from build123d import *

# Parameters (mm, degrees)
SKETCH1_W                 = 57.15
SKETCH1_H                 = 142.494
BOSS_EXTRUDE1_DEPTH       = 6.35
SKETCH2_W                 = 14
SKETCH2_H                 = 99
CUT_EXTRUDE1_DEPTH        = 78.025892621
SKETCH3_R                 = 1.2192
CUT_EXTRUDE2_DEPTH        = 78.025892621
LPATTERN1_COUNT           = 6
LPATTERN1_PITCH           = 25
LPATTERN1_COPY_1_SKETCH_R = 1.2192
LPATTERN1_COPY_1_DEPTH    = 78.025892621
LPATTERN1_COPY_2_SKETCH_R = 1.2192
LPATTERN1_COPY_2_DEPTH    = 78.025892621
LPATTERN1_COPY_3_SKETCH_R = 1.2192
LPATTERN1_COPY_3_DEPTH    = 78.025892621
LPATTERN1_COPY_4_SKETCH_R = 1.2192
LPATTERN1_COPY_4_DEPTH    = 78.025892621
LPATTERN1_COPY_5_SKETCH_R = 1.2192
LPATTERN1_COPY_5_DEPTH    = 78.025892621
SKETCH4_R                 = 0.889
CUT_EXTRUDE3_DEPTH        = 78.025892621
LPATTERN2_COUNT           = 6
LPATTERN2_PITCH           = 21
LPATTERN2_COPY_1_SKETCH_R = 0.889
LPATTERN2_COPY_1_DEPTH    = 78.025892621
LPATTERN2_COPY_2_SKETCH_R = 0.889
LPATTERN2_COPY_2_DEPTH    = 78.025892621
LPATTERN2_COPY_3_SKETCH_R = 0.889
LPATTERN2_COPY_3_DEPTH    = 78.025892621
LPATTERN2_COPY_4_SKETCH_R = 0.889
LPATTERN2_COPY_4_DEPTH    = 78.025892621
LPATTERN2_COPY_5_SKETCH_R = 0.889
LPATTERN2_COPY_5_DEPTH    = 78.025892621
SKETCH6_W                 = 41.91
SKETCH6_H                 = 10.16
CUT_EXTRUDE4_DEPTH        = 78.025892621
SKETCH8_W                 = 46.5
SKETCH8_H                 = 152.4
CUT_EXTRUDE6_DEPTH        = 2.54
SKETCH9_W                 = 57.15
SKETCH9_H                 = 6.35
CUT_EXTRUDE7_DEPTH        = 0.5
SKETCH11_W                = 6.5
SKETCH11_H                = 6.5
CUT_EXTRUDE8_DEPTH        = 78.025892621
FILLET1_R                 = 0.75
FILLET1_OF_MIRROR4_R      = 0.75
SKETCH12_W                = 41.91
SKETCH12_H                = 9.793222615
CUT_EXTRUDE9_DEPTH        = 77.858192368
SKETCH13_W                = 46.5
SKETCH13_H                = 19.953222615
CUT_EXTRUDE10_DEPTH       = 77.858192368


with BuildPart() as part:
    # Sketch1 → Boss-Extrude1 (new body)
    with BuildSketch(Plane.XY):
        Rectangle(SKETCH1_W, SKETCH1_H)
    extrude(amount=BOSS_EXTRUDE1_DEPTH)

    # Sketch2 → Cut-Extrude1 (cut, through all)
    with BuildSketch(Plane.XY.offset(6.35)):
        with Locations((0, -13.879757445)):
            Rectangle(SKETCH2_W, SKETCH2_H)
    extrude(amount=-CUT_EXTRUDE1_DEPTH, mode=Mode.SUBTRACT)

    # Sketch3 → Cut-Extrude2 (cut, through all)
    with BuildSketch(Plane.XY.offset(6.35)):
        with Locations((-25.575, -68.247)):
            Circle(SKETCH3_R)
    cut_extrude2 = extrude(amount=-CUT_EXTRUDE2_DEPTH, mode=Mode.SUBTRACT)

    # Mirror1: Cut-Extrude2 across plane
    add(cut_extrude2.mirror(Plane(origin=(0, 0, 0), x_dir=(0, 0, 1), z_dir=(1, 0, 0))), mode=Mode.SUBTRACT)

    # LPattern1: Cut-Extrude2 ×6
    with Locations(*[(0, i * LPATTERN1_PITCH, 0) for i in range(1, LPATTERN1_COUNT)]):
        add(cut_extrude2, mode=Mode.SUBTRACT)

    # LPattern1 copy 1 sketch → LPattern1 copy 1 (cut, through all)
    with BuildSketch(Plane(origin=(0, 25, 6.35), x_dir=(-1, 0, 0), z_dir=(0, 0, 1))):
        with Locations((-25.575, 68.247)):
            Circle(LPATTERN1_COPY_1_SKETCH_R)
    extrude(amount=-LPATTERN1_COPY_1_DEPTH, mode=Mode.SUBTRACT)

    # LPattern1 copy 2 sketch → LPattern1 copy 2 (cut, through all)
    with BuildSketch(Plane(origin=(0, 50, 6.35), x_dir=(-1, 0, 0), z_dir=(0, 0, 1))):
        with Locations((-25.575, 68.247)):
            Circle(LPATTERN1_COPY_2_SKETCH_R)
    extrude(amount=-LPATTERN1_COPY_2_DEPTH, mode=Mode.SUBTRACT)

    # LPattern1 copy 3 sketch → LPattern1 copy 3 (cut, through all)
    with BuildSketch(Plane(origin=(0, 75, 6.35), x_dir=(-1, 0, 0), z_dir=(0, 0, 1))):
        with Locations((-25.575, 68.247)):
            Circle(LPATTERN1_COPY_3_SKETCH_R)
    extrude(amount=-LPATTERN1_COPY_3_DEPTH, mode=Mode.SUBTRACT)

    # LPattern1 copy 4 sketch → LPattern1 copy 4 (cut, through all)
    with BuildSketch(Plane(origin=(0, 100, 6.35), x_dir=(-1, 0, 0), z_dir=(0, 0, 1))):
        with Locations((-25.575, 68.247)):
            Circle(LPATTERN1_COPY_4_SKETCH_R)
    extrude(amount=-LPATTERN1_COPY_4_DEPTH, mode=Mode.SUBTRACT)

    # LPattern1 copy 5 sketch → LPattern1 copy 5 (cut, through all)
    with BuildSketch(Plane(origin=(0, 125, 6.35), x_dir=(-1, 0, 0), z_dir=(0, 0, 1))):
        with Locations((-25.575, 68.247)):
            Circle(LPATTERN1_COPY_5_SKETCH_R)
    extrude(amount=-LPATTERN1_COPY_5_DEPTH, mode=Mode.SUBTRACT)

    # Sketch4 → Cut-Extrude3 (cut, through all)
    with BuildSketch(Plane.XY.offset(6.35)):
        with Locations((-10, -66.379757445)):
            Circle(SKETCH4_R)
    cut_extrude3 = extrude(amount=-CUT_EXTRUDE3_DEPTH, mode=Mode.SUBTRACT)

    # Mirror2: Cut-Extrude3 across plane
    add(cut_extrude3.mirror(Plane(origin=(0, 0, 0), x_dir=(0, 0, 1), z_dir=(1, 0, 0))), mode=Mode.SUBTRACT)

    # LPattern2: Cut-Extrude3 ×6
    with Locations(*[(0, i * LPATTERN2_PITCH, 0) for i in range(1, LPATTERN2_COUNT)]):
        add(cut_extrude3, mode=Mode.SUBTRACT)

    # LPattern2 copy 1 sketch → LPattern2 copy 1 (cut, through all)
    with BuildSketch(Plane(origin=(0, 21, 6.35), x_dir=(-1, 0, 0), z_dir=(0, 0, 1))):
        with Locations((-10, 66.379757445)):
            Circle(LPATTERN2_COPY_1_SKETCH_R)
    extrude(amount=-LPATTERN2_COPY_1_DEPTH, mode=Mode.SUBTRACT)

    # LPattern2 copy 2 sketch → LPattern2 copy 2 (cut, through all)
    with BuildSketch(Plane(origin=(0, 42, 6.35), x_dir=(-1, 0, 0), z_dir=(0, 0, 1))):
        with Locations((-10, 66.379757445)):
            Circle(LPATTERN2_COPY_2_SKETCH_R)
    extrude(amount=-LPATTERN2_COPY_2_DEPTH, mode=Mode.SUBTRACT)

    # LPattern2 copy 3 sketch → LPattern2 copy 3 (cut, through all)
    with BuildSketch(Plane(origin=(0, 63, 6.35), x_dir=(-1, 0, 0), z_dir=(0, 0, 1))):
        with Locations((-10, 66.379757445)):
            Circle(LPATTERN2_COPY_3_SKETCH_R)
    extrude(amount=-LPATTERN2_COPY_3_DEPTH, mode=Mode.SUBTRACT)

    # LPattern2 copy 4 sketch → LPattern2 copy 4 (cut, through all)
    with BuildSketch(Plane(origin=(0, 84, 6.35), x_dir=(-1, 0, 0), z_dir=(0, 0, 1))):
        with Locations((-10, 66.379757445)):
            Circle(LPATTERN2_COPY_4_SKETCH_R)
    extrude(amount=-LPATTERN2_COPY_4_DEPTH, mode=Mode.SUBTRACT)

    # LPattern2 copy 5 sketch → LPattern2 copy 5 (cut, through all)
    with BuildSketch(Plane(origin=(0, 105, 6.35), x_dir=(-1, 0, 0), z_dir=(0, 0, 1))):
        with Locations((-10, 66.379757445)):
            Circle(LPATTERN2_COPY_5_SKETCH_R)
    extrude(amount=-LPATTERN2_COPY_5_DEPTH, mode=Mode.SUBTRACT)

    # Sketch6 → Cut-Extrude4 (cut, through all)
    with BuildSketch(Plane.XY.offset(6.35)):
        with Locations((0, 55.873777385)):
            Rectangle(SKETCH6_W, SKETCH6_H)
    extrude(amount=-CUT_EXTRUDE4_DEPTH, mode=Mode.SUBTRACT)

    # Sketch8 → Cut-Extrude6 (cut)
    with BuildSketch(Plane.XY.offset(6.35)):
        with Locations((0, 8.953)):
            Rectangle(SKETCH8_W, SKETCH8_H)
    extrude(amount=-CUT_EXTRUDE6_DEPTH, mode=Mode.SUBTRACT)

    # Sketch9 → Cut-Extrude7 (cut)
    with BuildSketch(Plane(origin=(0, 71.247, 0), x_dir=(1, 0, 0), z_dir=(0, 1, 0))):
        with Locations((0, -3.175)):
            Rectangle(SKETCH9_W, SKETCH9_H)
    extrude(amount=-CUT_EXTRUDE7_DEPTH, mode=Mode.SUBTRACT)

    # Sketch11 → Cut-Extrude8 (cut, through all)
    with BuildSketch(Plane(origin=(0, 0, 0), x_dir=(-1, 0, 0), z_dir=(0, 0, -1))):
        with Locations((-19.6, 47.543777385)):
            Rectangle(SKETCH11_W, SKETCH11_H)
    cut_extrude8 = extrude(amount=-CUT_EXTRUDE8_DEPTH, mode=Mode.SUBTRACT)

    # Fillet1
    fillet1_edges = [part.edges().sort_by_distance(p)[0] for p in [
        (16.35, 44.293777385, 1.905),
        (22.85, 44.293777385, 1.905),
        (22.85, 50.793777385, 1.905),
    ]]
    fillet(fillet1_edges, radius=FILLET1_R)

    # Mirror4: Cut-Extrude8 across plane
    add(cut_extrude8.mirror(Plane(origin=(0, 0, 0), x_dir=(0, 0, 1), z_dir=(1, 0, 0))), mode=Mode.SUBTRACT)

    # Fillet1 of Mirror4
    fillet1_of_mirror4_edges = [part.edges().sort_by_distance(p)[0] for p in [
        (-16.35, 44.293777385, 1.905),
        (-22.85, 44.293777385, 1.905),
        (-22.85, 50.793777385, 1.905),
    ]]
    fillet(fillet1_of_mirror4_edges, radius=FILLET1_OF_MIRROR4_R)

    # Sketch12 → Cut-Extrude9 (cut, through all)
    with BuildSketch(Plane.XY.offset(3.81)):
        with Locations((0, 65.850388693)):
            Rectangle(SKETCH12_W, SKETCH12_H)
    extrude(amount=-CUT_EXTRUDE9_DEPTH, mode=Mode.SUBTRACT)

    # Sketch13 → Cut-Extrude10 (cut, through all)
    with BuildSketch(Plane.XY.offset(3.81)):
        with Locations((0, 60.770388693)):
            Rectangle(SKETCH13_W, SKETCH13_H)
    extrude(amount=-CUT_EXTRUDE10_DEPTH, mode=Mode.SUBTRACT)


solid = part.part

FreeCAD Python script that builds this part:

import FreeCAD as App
import Part
import Sketcher

V = App.Vector
Q = App.Units.Quantity


def edges_at(feature, points):
    """Names of the edges that pass closest to the given points."""
    edges = feature.Shape.Edges
    near = lambda p: min(range(len(edges)), key=lambda i: edges[i].distToShape(Part.Vertex(*p))[0])
    return sorted({f"Edge{near(p) + 1}" for p in points})

doc = App.newDocument("Part")
body = doc.addObject("PartDesign::Body", "Body")

# Sketch on XY plane
sketch1 = doc.addObject("Sketcher::SketchObject", "Sketch")
body.addObject(sketch1)
sketch1.AttachmentSupport = (doc.XY_Plane, [""])
sketch1.MapMode = "FlatFace"
sketch1.addGeometry([
    Part.LineSegment(V(-28.575, 71.247, 0), V(-28.575, -71.247, 0)),
    Part.LineSegment(V(-28.575, -71.247, 0), V(28.575, -71.247, 0)),
    Part.LineSegment(V(28.575, -71.247, 0), V(28.575, 71.247, 0)),
    Part.LineSegment(V(28.575, 71.247, 0), V(-28.575, 71.247, 0)),
], False)
sketch1.addConstraint([
    Sketcher.Constraint("Coincident", 0, 2, 1, 1),
    Sketcher.Constraint("Coincident", 1, 2, 2, 1),
    Sketcher.Constraint("Coincident", 2, 2, 3, 1),
    Sketcher.Constraint("Coincident", 3, 2, 0, 1),
    Sketcher.Constraint("Vertical", 0),
    Sketcher.Constraint("Horizontal", 1),
    Sketcher.Constraint("Vertical", 2),
    Sketcher.Constraint("Horizontal", 3),
    Sketcher.Constraint("Symmetric", 0, 2, 2, 2, -1, 1),
    Sketcher.Constraint("DistanceX", 1, 1, 1, 2, Q("2.25 in")),
    Sketcher.Constraint("DistanceY", 0, 2, 0, 1, Q("5.61 in")),
])
pad1 = doc.addObject("PartDesign::Pad", "Pad")
body.addObject(pad1)
pad1.Profile = sketch1
pad1.Length = Q("0.25 in")

# Sketch on XY plane
sketch2 = doc.addObject("Sketcher::SketchObject", "Sketch001")
body.addObject(sketch2)
sketch2.AttachmentSupport = (doc.XY_Plane, [""])
sketch2.MapMode = "FlatFace"
sketch2.AttachmentOffset = App.Placement(V(0, 0, 0.25 * 25.4), App.Rotation())
sketch2.addGeometry([
    Part.LineSegment(V(-7, 35.620243, 0), V(-7, -63.379757, 0)),
    Part.LineSegment(V(-7, -63.379757, 0), V(7, -63.379757, 0)),
    Part.LineSegment(V(7, -63.379757, 0), V(7, 35.620243, 0)),
    Part.LineSegment(V(7, 35.620243, 0), V(-7, 35.620243, 0)),
], False)
sketch2.addConstraint([
    Sketcher.Constraint("Coincident", 0, 2, 1, 1),
    Sketcher.Constraint("Coincident", 1, 2, 2, 1),
    Sketcher.Constraint("Coincident", 2, 2, 3, 1),
    Sketcher.Constraint("Coincident", 3, 2, 0, 1),
    Sketcher.Constraint("Vertical", 0),
    Sketcher.Constraint("Horizontal", 1),
    Sketcher.Constraint("Vertical", 2),
    Sketcher.Constraint("Horizontal", 3),
    Sketcher.Constraint("DistanceX", 1, 1, 1, 2, 14.0),
    Sketcher.Constraint("DistanceY", 0, 2, 0, 1, 99.0),
    Sketcher.Constraint("DistanceX", 0, 2, -1, 1, 7.0),
    Sketcher.Constraint("DistanceY", 0, 2, -1, 1, 63.379757),
])
pocket1 = doc.addObject("PartDesign::Pocket", "Pocket")
body.addObject(pocket1)
pocket1.Profile = sketch2
pocket1.Type = "ThroughAll"

# Sketch on XY plane
sketch3 = doc.addObject("Sketcher::SketchObject", "Sketch002")
body.addObject(sketch3)
sketch3.AttachmentSupport = (doc.XY_Plane, [""])
sketch3.MapMode = "FlatFace"
sketch3.AttachmentOffset = App.Placement(V(0, 0, 0.25 * 25.4), App.Rotation())
sketch3.addGeometry(Part.Circle(V(-25.575, -68.247, 0), V(0, 0, 1), 1.2192), False)
sketch3.addConstraint([
    Sketcher.Constraint("Diameter", 0, Q("0.096 in")),
    Sketcher.Constraint("DistanceX", 0, 3, -1, 1, 25.575),
    Sketcher.Constraint("DistanceY", 0, 3, -1, 1, 68.247),
])
pocket2 = doc.addObject("PartDesign::Pocket", "Pocket001")
body.addObject(pocket2)
pocket2.Profile = sketch3
pocket2.Type = "ThroughAll"
doc.recompute()

mirrored = doc.addObject("PartDesign::Mirrored", "Mirrored")
body.addObject(mirrored)
mirrored.Originals = [pocket2]
mirrored.MirrorPlane = (doc.YZ_Plane, [""])
body.Tip = mirrored
doc.recompute()

linearpattern = doc.addObject("PartDesign::LinearPattern", "LinearPattern")
body.addObject(linearpattern)
linearpattern.Originals = [pocket2]
linearpattern.Direction = (doc.Y_Axis, [""])
linearpattern.Mode = "offset"
linearpattern.Offset = 25
linearpattern.Occurrences = 6
body.Tip = linearpattern

# Sketch on XY plane
sketch4 = doc.addObject("Sketcher::SketchObject", "Sketch003")
body.addObject(sketch4)
sketch4.AttachmentSupport = (doc.XY_Plane, [""])
sketch4.MapMode = "FlatFace"
sketch4.AttachmentOffset = App.Placement(V(0, 0, 0.25 * 25.4), App.Rotation())
sketch4.addGeometry(Part.Circle(V(25.575, -43.247, 0), V(0, 0, 1), 1.2192), False)
sketch4.addConstraint([
    Sketcher.Constraint("Diameter", 0, Q("0.096 in")),
    Sketcher.Constraint("DistanceX", -1, 1, 0, 3, 25.575),
    Sketcher.Constraint("DistanceY", 0, 3, -1, 1, 43.247),
])
pocket3 = doc.addObject("PartDesign::Pocket", "Pocket002")
body.addObject(pocket3)
pocket3.Profile = sketch4
pocket3.Type = "ThroughAll"

# Sketch on XY plane
sketch5 = doc.addObject("Sketcher::SketchObject", "Sketch004")
body.addObject(sketch5)
sketch5.AttachmentSupport = (doc.XY_Plane, [""])
sketch5.MapMode = "FlatFace"
sketch5.AttachmentOffset = App.Placement(V(0, 0, 0.25 * 25.4), App.Rotation())
sketch5.addGeometry(Part.Circle(V(25.575, -18.247, 0), V(0, 0, 1), 1.2192), False)
sketch5.addConstraint([
    Sketcher.Constraint("Diameter", 0, Q("0.096 in")),
    Sketcher.Constraint("DistanceX", -1, 1, 0, 3, 25.575),
    Sketcher.Constraint("DistanceY", 0, 3, -1, 1, 18.247),
])
pocket4 = doc.addObject("PartDesign::Pocket", "Pocket003")
body.addObject(pocket4)
pocket4.Profile = sketch5
pocket4.Type = "ThroughAll"

# Sketch on XY plane
sketch6 = doc.addObject("Sketcher::SketchObject", "Sketch005")
body.addObject(sketch6)
sketch6.AttachmentSupport = (doc.XY_Plane, [""])
sketch6.MapMode = "FlatFace"
sketch6.AttachmentOffset = App.Placement(V(0, 0, 0.25 * 25.4), App.Rotation())
sketch6.addGeometry(Part.Circle(V(25.575, 6.753, 0), V(0, 0, 1), 1.2192), False)
sketch6.addConstraint([
    Sketcher.Constraint("Diameter", 0, Q("0.096 in")),
    Sketcher.Constraint("DistanceX", -1, 1, 0, 3, 25.575),
    Sketcher.Constraint("DistanceY", -1, 1, 0, 3, 6.753),
])
pocket5 = doc.addObject("PartDesign::Pocket", "Pocket004")
body.addObject(pocket5)
pocket5.Profile = sketch6
pocket5.Type = "ThroughAll"

# Sketch on XY plane
sketch7 = doc.addObject("Sketcher::SketchObject", "Sketch006")
body.addObject(sketch7)
sketch7.AttachmentSupport = (doc.XY_Plane, [""])
sketch7.MapMode = "FlatFace"
sketch7.AttachmentOffset = App.Placement(V(0, 0, 0.25 * 25.4), App.Rotation())
sketch7.addGeometry(Part.Circle(V(25.575, 31.753, 0), V(0, 0, 1), 1.2192), False)
sketch7.addConstraint([
    Sketcher.Constraint("Diameter", 0, Q("0.096 in")),
    Sketcher.Constraint("DistanceX", -1, 1, 0, 3, 25.575),
    Sketcher.Constraint("DistanceY", -1, 1, 0, 3, 31.753),
])
pocket6 = doc.addObject("PartDesign::Pocket", "Pocket005")
body.addObject(pocket6)
pocket6.Profile = sketch7
pocket6.Type = "ThroughAll"

# Sketch on XY plane
sketch8 = doc.addObject("Sketcher::SketchObject", "Sketch007")
body.addObject(sketch8)
sketch8.AttachmentSupport = (doc.XY_Plane, [""])
sketch8.MapMode = "FlatFace"
sketch8.AttachmentOffset = App.Placement(V(0, 0, 0.25 * 25.4), App.Rotation())
sketch8.addGeometry(Part.Circle(V(25.575, 56.753, 0), V(0, 0, 1), 1.2192), False)
sketch8.addConstraint([
    Sketcher.Constraint("Diameter", 0, Q("0.096 in")),
    Sketcher.Constraint("DistanceX", -1, 1, 0, 3, 25.575),
    Sketcher.Constraint("DistanceY", -1, 1, 0, 3, 56.753),
])
pocket7 = doc.addObject("PartDesign::Pocket", "Pocket006")
body.addObject(pocket7)
pocket7.Profile = sketch8
pocket7.Type = "ThroughAll"

# Sketch on XY plane
sketch9 = doc.addObject("Sketcher::SketchObject", "Sketch008")
body.addObject(sketch9)
sketch9.AttachmentSupport = (doc.XY_Plane, [""])
sketch9.MapMode = "FlatFace"
sketch9.AttachmentOffset = App.Placement(V(0, 0, 0.25 * 25.4), App.Rotation())
sketch9.addGeometry(Part.Circle(V(-10, -66.379757, 0), V(0, 0, 1), 0.889), False)
sketch9.addConstraint([
    Sketcher.Constraint("Diameter", 0, Q("0.07 in")),
    Sketcher.Constraint("DistanceX", 0, 3, -1, 1, 10.0),
    Sketcher.Constraint("DistanceY", 0, 3, -1, 1, 66.379757),
])
pocket8 = doc.addObject("PartDesign::Pocket", "Pocket007")
body.addObject(pocket8)
pocket8.Profile = sketch9
pocket8.Type = "ThroughAll"
doc.recompute()

mirrored2 = doc.addObject("PartDesign::Mirrored", "Mirrored001")
body.addObject(mirrored2)
mirrored2.Originals = [pocket8]
mirrored2.MirrorPlane = (doc.YZ_Plane, [""])
body.Tip = mirrored2
doc.recompute()

linearpattern2 = doc.addObject("PartDesign::LinearPattern", "LinearPattern001")
body.addObject(linearpattern2)
linearpattern2.Originals = [pocket8]
linearpattern2.Direction = (doc.Y_Axis, [""])
linearpattern2.Mode = "offset"
linearpattern2.Offset = 21
linearpattern2.Occurrences = 6
body.Tip = linearpattern2

# Sketch on XY plane
sketch10 = doc.addObject("Sketcher::SketchObject", "Sketch009")
body.addObject(sketch10)
sketch10.AttachmentSupport = (doc.XY_Plane, [""])
sketch10.MapMode = "FlatFace"
sketch10.AttachmentOffset = App.Placement(V(0, 0, 0.25 * 25.4), App.Rotation())
sketch10.addGeometry(Part.Circle(V(10, -45.379757, 0), V(0, 0, 1), 0.889), False)
sketch10.addConstraint([
    Sketcher.Constraint("Diameter", 0, Q("0.07 in")),
    Sketcher.Constraint("DistanceX", -1, 1, 0, 3, 10.0),
    Sketcher.Constraint("DistanceY", 0, 3, -1, 1, 45.379757),
])
pocket9 = doc.addObject("PartDesign::Pocket", "Pocket008")
body.addObject(pocket9)
pocket9.Profile = sketch10
pocket9.Type = "ThroughAll"

# Sketch on XY plane
sketch11 = doc.addObject("Sketcher::SketchObject", "Sketch010")
body.addObject(sketch11)
sketch11.AttachmentSupport = (doc.XY_Plane, [""])
sketch11.MapMode = "FlatFace"
sketch11.AttachmentOffset = App.Placement(V(0, 0, 0.25 * 25.4), App.Rotation())
sketch11.addGeometry(Part.Circle(V(10, -24.379757, 0), V(0, 0, 1), 0.889), False)
sketch11.addConstraint([
    Sketcher.Constraint("Diameter", 0, Q("0.07 in")),
    Sketcher.Constraint("DistanceX", -1, 1, 0, 3, 10.0),
    Sketcher.Constraint("DistanceY", 0, 3, -1, 1, 24.379757),
])
pocket10 = doc.addObject("PartDesign::Pocket", "Pocket009")
body.addObject(pocket10)
pocket10.Profile = sketch11
pocket10.Type = "ThroughAll"

# Sketch on XY plane
sketch12 = doc.addObject("Sketcher::SketchObject", "Sketch011")
body.addObject(sketch12)
sketch12.AttachmentSupport = (doc.XY_Plane, [""])
sketch12.MapMode = "FlatFace"
sketch12.AttachmentOffset = App.Placement(V(0, 0, 0.25 * 25.4), App.Rotation())
sketch12.addGeometry(Part.Circle(V(10, -3.379757, 0), V(0, 0, 1), 0.889), False)
sketch12.addConstraint([
    Sketcher.Constraint("Diameter", 0, Q("0.07 in")),
    Sketcher.Constraint("DistanceX", -1, 1, 0, 3, 10.0),
    Sketcher.Constraint("DistanceY", 0, 3, -1, 1, 3.379757),
])
pocket11 = doc.addObject("PartDesign::Pocket", "Pocket010")
body.addObject(pocket11)
pocket11.Profile = sketch12
pocket11.Type = "ThroughAll"

# Sketch on XY plane
sketch13 = doc.addObject("Sketcher::SketchObject", "Sketch012")
body.addObject(sketch13)
sketch13.AttachmentSupport = (doc.XY_Plane, [""])
sketch13.MapMode = "FlatFace"
sketch13.AttachmentOffset = App.Placement(V(0, 0, 0.25 * 25.4), App.Rotation())
sketch13.addGeometry(Part.Circle(V(10, 17.620243, 0), V(0, 0, 1), 0.889), False)
sketch13.addConstraint([
    Sketcher.Constraint("Diameter", 0, Q("0.07 in")),
    Sketcher.Constraint("DistanceX", -1, 1, 0, 3, 10.0),
    Sketcher.Constraint("DistanceY", -1, 1, 0, 3, 17.620243),
])
pocket12 = doc.addObject("PartDesign::Pocket", "Pocket011")
body.addObject(pocket12)
pocket12.Profile = sketch13
pocket12.Type = "ThroughAll"

# Sketch on XY plane
sketch14 = doc.addObject("Sketcher::SketchObject", "Sketch013")
body.addObject(sketch14)
sketch14.AttachmentSupport = (doc.XY_Plane, [""])
sketch14.MapMode = "FlatFace"
sketch14.AttachmentOffset = App.Placement(V(0, 0, 0.25 * 25.4), App.Rotation())
sketch14.addGeometry(Part.Circle(V(10, 38.620243, 0), V(0, 0, 1), 0.889), False)
sketch14.addConstraint([
    Sketcher.Constraint("Diameter", 0, Q("0.07 in")),
    Sketcher.Constraint("DistanceX", -1, 1, 0, 3, 10.0),
    Sketcher.Constraint("DistanceY", -1, 1, 0, 3, 38.620243),
])
pocket13 = doc.addObject("PartDesign::Pocket", "Pocket012")
body.addObject(pocket13)
pocket13.Profile = sketch14
pocket13.Type = "ThroughAll"

# Sketch on XY plane
sketch15 = doc.addObject("Sketcher::SketchObject", "Sketch014")
body.addObject(sketch15)
sketch15.AttachmentSupport = (doc.XY_Plane, [""])
sketch15.MapMode = "FlatFace"
sketch15.AttachmentOffset = App.Placement(V(0, 0, 0.25 * 25.4), App.Rotation())
sketch15.addGeometry([
    Part.LineSegment(V(-20.955, 60.953777, 0), V(-20.955, 50.793777, 0)),
    Part.LineSegment(V(-20.955, 50.793777, 0), V(20.955, 50.793777, 0)),
    Part.LineSegment(V(20.955, 50.793777, 0), V(20.955, 60.953777, 0)),
    Part.LineSegment(V(20.955, 60.953777, 0), V(-20.955, 60.953777, 0)),
], False)
sketch15.addConstraint([
    Sketcher.Constraint("Coincident", 0, 2, 1, 1),
    Sketcher.Constraint("Coincident", 1, 2, 2, 1),
    Sketcher.Constraint("Coincident", 2, 2, 3, 1),
    Sketcher.Constraint("Coincident", 3, 2, 0, 1),
    Sketcher.Constraint("Vertical", 0),
    Sketcher.Constraint("Horizontal", 1),
    Sketcher.Constraint("Vertical", 2),
    Sketcher.Constraint("Horizontal", 3),
    Sketcher.Constraint("DistanceY", 0, 2, 0, 1, Q("0.4 in")),
    Sketcher.Constraint("DistanceX", 1, 1, 1, 2, Q("1.65 in")),
    Sketcher.Constraint("DistanceX", 0, 2, -1, 1, Q("0.825 in")),
    Sketcher.Constraint("DistanceY", -1, 1, 0, 2, 50.793777),
])
pocket14 = doc.addObject("PartDesign::Pocket", "Pocket013")
body.addObject(pocket14)
pocket14.Profile = sketch15
pocket14.Type = "ThroughAll"

# Sketch on XY plane
sketch16 = doc.addObject("Sketcher::SketchObject", "Sketch015")
body.addObject(sketch16)
sketch16.AttachmentSupport = (doc.XY_Plane, [""])
sketch16.MapMode = "FlatFace"
sketch16.AttachmentOffset = App.Placement(V(0, 0, 0.25 * 25.4), App.Rotation())
sketch16.addGeometry([
    Part.LineSegment(V(-23.25, 85.153, 0), V(-23.25, -67.247, 0)),
    Part.LineSegment(V(-23.25, -67.247, 0), V(23.25, -67.247, 0)),
    Part.LineSegment(V(23.25, -67.247, 0), V(23.25, 85.153, 0)),
    Part.LineSegment(V(23.25, 85.153, 0), V(-23.25, 85.153, 0)),
], False)
sketch16.addConstraint([
    Sketcher.Constraint("Coincident", 0, 2, 1, 1),
    Sketcher.Constraint("Coincident", 1, 2, 2, 1),
    Sketcher.Constraint("Coincident", 2, 2, 3, 1),
    Sketcher.Constraint("Coincident", 3, 2, 0, 1),
    Sketcher.Constraint("Vertical", 0),
    Sketcher.Constraint("Horizontal", 1),
    Sketcher.Constraint("Vertical", 2),
    Sketcher.Constraint("Horizontal", 3),
    Sketcher.Constraint("DistanceY", 0, 2, 0, 1, Q("6 in")),
    Sketcher.Constraint("DistanceX", 1, 1, 1, 2, 46.5),
    Sketcher.Constraint("DistanceX", 0, 2, -1, 1, 23.25),
    Sketcher.Constraint("DistanceY", 0, 2, -1, 1, 67.247),
])
pocket15 = doc.addObject("PartDesign::Pocket", "Pocket014")
body.addObject(pocket15)
pocket15.Profile = sketch16
pocket15.Length = Q("0.1 in")

# Sketch on XZ plane
sketch17 = doc.addObject("Sketcher::SketchObject", "Sketch016")
body.addObject(sketch17)
sketch17.AttachmentSupport = (doc.XZ_Plane, [""])
sketch17.MapMode = "FlatFace"
sketch17.AttachmentOffset = App.Placement(V(0, 0, -2.805 * 25.4), App.Rotation())
sketch17.addGeometry([
    Part.LineSegment(V(-28.575, 0, 0), V(-28.575, 6.35, 0)),
    Part.LineSegment(V(-28.575, 6.35, 0), V(28.575, 6.35, 0)),
    Part.LineSegment(V(28.575, 6.35, 0), V(28.575, 0, 0)),
    Part.LineSegment(V(28.575, 0, 0), V(-28.575, 0, 0)),
], False)
sketch17.addConstraint([
    Sketcher.Constraint("Coincident", 0, 2, 1, 1),
    Sketcher.Constraint("Coincident", 1, 2, 2, 1),
    Sketcher.Constraint("Coincident", 2, 2, 3, 1),
    Sketcher.Constraint("Coincident", 3, 2, 0, 1),
    Sketcher.Constraint("Vertical", 0),
    Sketcher.Constraint("Horizontal", 1),
    Sketcher.Constraint("Vertical", 2),
    Sketcher.Constraint("Horizontal", 3),
    Sketcher.Constraint("Symmetric", 2, 2, 3, 2, -1, 1),
    Sketcher.Constraint("DistanceX", 1, 1, 1, 2, Q("2.25 in")),
    Sketcher.Constraint("DistanceY", 0, 1, 0, 2, Q("0.25 in")),
])
pocket16 = doc.addObject("PartDesign::Pocket", "Pocket015")
body.addObject(pocket16)
pocket16.Profile = sketch17
pocket16.Length = 0.5
pocket16.Reversed = True

# Sketch on XY plane
sketch18 = doc.addObject("Sketcher::SketchObject", "Sketch017")
body.addObject(sketch18)
sketch18.AttachmentSupport = (doc.XY_Plane, [""])
sketch18.MapMode = "FlatFace"
sketch18.addGeometry([
    Part.LineSegment(V(22.85, 50.793777, 0), V(22.85, 44.293777, 0)),
    Part.LineSegment(V(22.85, 44.293777, 0), V(16.35, 44.293777, 0)),
    Part.LineSegment(V(16.35, 44.293777, 0), V(16.35, 50.793777, 0)),
    Part.LineSegment(V(16.35, 50.793777, 0), V(22.85, 50.793777, 0)),
], False)
sketch18.addConstraint([
    Sketcher.Constraint("Coincident", 0, 2, 1, 1),
    Sketcher.Constraint("Coincident", 1, 2, 2, 1),
    Sketcher.Constraint("Coincident", 2, 2, 3, 1),
    Sketcher.Constraint("Coincident", 3, 2, 0, 1),
    Sketcher.Constraint("Vertical", 0),
    Sketcher.Constraint("Horizontal", 1),
    Sketcher.Constraint("Vertical", 2),
    Sketcher.Constraint("Horizontal", 3),
    Sketcher.Constraint("Equal", 3, 0),
    Sketcher.Constraint("DistanceX", 1, 2, 1, 1, 6.5),
    Sketcher.Constraint("DistanceX", -1, 1, 0, 2, 22.85),
    Sketcher.Constraint("DistanceY", -1, 1, 0, 2, 44.293777),
])
pocket17 = doc.addObject("PartDesign::Pocket", "Pocket016")
body.addObject(pocket17)
pocket17.Profile = sketch18
pocket17.Type = "ThroughAll"
pocket17.Reversed = True
doc.recompute()

fillet = doc.addObject("PartDesign::Fillet", "Fillet")
body.addObject(fillet)
fillet.Base = (pocket17, edges_at(pocket17, [(16.35, 44.294, 1.905), (22.85, 44.294, 1.905), (22.85, 50.794, 1.905)]))
fillet.Radius = 0.75
doc.recompute()

mirrored3 = doc.addObject("PartDesign::Mirrored", "Mirrored002")
body.addObject(mirrored3)
mirrored3.Originals = [pocket17]
mirrored3.MirrorPlane = (doc.YZ_Plane, [""])
body.Tip = mirrored3
doc.recompute()

fillet2 = doc.addObject("PartDesign::Fillet", "Fillet001")
body.addObject(fillet2)
fillet2.Base = (mirrored3, edges_at(mirrored3, [(-16.35, 44.294, 1.905), (-22.85, 44.294, 1.905), (-22.85, 50.794, 1.905)]))
fillet2.Radius = 0.75

# Sketch on XY plane
sketch19 = doc.addObject("Sketcher::SketchObject", "Sketch018")
body.addObject(sketch19)
sketch19.AttachmentSupport = (doc.XY_Plane, [""])
sketch19.MapMode = "FlatFace"
sketch19.AttachmentOffset = App.Placement(V(0, 0, 0.15 * 25.4), App.Rotation())
sketch19.addGeometry([
    Part.LineSegment(V(-20.955, 70.747, 0), V(-20.955, 60.953777, 0)),
    Part.LineSegment(V(-20.955, 60.953777, 0), V(20.955, 60.953777, 0)),
    Part.LineSegment(V(20.955, 60.953777, 0), V(20.955, 70.747, 0)),
    Part.LineSegment(V(20.955, 70.747, 0), V(-20.955, 70.747, 0)),
], False)
sketch19.addConstraint([
    Sketcher.Constraint("Coincident", 0, 2, 1, 1),
    Sketcher.Constraint("Coincident", 1, 2, 2, 1),
    Sketcher.Constraint("Coincident", 2, 2, 3, 1),
    Sketcher.Constraint("Coincident", 3, 2, 0, 1),
    Sketcher.Constraint("Vertical", 0),
    Sketcher.Constraint("Horizontal", 1),
    Sketcher.Constraint("Vertical", 2),
    Sketcher.Constraint("Horizontal", 3),
    Sketcher.Constraint("DistanceX", 1, 1, 1, 2, Q("1.65 in")),
    Sketcher.Constraint("DistanceX", 0, 2, -1, 1, Q("0.825 in")),
    Sketcher.Constraint("DistanceY", -1, 1, 2, 2, 70.747),
    Sketcher.Constraint("DistanceY", 0, 2, 0, 1, 9.793223),
])
pocket18 = doc.addObject("PartDesign::Pocket", "Pocket017")
body.addObject(pocket18)
pocket18.Profile = sketch19
pocket18.Type = "ThroughAll"

# Sketch on XY plane
sketch20 = doc.addObject("Sketcher::SketchObject", "Sketch019")
body.addObject(sketch20)
sketch20.AttachmentSupport = (doc.XY_Plane, [""])
sketch20.MapMode = "FlatFace"
sketch20.AttachmentOffset = App.Placement(V(0, 0, 0.15 * 25.4), App.Rotation())
sketch20.addGeometry([
    Part.LineSegment(V(-23.25, 70.747, 0), V(-23.25, 50.793777, 0)),
    Part.LineSegment(V(-23.25, 50.793777, 0), V(23.25, 50.793777, 0)),
    Part.LineSegment(V(23.25, 50.793777, 0), V(23.25, 70.747, 0)),
    Part.LineSegment(V(23.25, 70.747, 0), V(-23.25, 70.747, 0)),
], False)
sketch20.addConstraint([
    Sketcher.Constraint("Coincident", 0, 2, 1, 1),
    Sketcher.Constraint("Coincident", 1, 2, 2, 1),
    Sketcher.Constraint("Coincident", 2, 2, 3, 1),
    Sketcher.Constraint("Coincident", 3, 2, 0, 1),
    Sketcher.Constraint("Vertical", 0),
    Sketcher.Constraint("Horizontal", 1),
    Sketcher.Constraint("Vertical", 2),
    Sketcher.Constraint("Horizontal", 3),
    Sketcher.Constraint("DistanceX", 1, 1, 1, 2, 46.5),
    Sketcher.Constraint("DistanceX", 0, 2, -1, 1, 23.25),
    Sketcher.Constraint("DistanceY", -1, 1, 2, 2, 70.747),
    Sketcher.Constraint("DistanceY", 0, 2, 0, 1, 19.953223),
])
pocket19 = doc.addObject("PartDesign::Pocket", "Pocket018")
body.addObject(pocket19)
pocket19.Profile = sketch20
pocket19.Type = "ThroughAll"

doc.recompute()
